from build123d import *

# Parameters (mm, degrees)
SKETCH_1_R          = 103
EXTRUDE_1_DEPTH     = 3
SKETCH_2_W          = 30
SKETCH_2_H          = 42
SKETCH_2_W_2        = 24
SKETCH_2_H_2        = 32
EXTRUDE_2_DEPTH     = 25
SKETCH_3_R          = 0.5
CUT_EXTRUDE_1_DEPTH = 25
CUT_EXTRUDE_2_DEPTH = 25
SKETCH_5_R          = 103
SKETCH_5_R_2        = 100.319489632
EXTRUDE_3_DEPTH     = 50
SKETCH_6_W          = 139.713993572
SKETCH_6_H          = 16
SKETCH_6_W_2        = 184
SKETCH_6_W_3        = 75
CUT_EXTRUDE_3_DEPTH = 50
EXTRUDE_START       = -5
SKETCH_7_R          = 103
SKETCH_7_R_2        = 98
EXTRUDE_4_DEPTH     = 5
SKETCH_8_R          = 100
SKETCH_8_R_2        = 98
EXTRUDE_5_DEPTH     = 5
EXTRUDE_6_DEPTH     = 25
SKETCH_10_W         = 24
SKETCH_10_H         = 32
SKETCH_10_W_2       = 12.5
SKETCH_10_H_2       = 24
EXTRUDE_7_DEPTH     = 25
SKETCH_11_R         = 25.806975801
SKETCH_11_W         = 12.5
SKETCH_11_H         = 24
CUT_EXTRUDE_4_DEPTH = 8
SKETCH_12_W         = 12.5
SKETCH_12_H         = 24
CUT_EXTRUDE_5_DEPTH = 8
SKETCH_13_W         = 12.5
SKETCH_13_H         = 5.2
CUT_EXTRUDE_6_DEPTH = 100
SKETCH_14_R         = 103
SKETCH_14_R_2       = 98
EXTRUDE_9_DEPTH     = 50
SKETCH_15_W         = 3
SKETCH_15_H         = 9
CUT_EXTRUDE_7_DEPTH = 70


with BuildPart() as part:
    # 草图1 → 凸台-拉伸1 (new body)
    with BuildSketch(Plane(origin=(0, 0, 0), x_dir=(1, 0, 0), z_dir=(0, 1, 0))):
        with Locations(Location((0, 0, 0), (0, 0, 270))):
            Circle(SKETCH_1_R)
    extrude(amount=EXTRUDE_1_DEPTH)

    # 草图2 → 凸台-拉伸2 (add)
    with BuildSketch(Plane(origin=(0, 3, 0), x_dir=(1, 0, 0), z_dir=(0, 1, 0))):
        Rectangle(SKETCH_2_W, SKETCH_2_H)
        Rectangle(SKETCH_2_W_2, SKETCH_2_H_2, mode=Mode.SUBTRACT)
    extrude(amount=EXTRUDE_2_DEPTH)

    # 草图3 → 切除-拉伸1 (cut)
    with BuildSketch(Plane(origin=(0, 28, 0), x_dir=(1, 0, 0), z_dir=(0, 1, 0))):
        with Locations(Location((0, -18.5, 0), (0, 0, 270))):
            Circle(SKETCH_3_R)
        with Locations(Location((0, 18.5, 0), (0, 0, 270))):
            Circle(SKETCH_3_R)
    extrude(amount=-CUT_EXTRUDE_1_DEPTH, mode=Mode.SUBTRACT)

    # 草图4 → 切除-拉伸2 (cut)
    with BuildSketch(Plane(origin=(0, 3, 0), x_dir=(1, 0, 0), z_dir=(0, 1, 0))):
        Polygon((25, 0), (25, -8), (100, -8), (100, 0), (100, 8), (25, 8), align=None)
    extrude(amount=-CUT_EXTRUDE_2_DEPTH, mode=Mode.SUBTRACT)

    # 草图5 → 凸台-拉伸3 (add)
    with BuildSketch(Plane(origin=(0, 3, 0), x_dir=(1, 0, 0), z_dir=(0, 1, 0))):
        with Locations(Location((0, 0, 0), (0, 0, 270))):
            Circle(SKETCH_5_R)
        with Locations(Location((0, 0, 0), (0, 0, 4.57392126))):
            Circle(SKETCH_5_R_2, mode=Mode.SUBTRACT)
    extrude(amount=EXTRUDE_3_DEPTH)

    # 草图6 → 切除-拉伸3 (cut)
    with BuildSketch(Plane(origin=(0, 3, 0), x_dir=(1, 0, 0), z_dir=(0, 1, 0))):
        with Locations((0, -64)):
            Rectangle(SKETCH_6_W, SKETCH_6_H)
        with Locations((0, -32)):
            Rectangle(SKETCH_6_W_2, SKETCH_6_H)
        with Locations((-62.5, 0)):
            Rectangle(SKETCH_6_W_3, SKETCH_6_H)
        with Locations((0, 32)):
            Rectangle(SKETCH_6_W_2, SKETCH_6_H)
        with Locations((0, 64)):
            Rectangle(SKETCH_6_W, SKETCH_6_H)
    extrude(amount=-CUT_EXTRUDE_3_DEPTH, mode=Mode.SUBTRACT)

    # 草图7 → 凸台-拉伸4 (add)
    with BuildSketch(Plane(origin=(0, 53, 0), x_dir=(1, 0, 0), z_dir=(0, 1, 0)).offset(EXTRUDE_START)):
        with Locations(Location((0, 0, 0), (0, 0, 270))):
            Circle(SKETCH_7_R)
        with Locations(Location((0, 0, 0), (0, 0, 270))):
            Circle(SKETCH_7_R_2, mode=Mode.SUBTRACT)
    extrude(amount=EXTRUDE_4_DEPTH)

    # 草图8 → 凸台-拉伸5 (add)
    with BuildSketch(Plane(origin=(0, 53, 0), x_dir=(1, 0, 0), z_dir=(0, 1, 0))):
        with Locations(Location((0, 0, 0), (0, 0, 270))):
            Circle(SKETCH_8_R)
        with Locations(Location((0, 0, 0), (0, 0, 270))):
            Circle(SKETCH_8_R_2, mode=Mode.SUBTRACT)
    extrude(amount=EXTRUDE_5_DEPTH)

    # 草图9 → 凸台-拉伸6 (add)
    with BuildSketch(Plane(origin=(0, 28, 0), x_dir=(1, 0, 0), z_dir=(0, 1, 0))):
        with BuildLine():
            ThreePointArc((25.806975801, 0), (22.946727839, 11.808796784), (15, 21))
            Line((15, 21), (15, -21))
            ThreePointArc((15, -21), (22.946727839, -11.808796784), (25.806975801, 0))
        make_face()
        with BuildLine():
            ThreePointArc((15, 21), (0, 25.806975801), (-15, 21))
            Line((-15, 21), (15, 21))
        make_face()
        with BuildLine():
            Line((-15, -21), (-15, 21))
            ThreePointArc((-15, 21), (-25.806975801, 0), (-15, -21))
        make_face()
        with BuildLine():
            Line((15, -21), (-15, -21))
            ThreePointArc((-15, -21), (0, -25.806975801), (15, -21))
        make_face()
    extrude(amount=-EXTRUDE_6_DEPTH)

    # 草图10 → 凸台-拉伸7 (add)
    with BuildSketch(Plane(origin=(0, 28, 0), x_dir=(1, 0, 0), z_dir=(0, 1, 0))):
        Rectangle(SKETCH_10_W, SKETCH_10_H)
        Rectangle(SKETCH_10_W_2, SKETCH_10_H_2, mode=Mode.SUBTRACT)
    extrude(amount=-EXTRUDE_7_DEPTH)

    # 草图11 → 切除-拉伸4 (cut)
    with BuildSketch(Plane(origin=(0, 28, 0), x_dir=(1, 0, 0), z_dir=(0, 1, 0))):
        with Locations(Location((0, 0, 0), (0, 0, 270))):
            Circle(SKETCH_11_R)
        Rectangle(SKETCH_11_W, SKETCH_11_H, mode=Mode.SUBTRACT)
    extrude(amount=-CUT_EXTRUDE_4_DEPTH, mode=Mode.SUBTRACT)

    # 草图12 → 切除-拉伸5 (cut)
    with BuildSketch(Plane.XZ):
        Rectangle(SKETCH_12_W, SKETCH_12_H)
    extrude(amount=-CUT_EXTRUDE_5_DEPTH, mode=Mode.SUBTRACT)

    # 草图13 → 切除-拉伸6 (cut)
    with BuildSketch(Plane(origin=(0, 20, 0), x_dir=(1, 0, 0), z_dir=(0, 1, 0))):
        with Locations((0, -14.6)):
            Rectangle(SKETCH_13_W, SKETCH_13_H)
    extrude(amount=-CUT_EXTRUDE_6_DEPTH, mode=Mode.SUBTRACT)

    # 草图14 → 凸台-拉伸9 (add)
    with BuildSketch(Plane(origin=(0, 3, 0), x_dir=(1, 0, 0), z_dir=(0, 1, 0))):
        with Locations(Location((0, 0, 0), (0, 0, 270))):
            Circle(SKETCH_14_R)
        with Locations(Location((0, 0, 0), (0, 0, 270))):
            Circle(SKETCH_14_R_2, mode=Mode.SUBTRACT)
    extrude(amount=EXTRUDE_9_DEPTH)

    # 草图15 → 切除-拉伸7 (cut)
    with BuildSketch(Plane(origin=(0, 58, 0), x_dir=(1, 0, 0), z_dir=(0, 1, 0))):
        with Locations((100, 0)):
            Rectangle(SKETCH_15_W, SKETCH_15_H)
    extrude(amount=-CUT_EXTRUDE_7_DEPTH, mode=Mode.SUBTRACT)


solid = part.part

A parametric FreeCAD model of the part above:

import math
import FreeCAD as App
import Part
import Sketcher
from FreeCAD import Vector
Q = App.Units.Quantity


def add_polygon(sketch, points):
    """Adds a closed chain of lines whose ends are joined by coincident constraints."""
    first, n = sketch.GeometryCount, len(points)
    for a, b in zip(points, points[1:] + points[:1]):
        sketch.addGeometry(Part.LineSegment(App.Vector(*a, 0), App.Vector(*b, 0)), False)
    for i in range(n):
        sketch.addConstraint(Sketcher.Constraint("Coincident", first + i, 2, first + (i + 1) % n, 1))

doc = App.newDocument("Part")
body = doc.addObject("PartDesign::Body", "Body")

sketch1 = doc.addObject("Sketcher::SketchObject", "Sketch")
body.addObject(sketch1)
sketch1.AttachmentSupport = (doc.XZ_Plane, [""])
sketch1.MapMode = "FlatFace"
sketch1.addGeometry(Part.Circle(Vector(0, 0, 0), Vector(0, 0, 1), 103), False)
sketch1.addConstraint([
    Sketcher.Constraint("Coincident", 0, 3, -1, 1),
    Sketcher.Constraint("Diameter", 0, Q("206 mm")),
])
pad1 = doc.addObject("PartDesign::Pad", "Pad")
body.addObject(pad1)
pad1.Profile = sketch1
pad1.Length = 3
pad1.Reversed = True

sketch2 = doc.addObject("Sketcher::SketchObject", "Sketch001")
body.addObject(sketch2)
sketch2.AttachmentSupport = (doc.XZ_Plane, [""])
sketch2.MapMode = "FlatFace"
sketch2.AttachmentOffset = App.Placement(Vector(0, 0, -3), App.Rotation())
add_polygon(sketch2, [(-15, -21), (-15, 21), (15, 21), (15, -21)])
add_polygon(sketch2, [(12, 16), (-12, 16), (-12, -16), (12, -16)])
sketch2.addConstraint([
    Sketcher.Constraint("Vertical", 0),
    Sketcher.Constraint("Horizontal", 1),
    Sketcher.Constraint("Vertical", 2),
    Sketcher.Constraint("Horizontal", 3),
    Sketcher.Constraint("Horizontal", 4),
    Sketcher.Constraint("Vertical", 5),
    Sketcher.Constraint("Horizontal", 6),
    Sketcher.Constraint("Vertical", 7),
    Sketcher.Constraint("Symmetric", 0, 2, 2, 2, -1, 1),
    Sketcher.Constraint("Symmetric", 4, 2, 6, 2, -1, 1),
    Sketcher.Constraint("DistanceX", 1, 1, 1, 2, Q("30 mm")),
    Sketcher.Constraint("DistanceX", 4, 2, 4, 1, Q("24 mm")),
    Sketcher.Constraint("DistanceY", 0, 1, 0, 2, Q("42 mm")),
    Sketcher.Constraint("DistanceY", 5, 2, 5, 1, Q("32 mm")),
])
pad2 = doc.addObject("PartDesign::Pad", "Pad001")
body.addObject(pad2)
pad2.Profile = sketch2
pad2.Length = 25
pad2.Reversed = True

sketch3 = doc.addObject("Sketcher::SketchObject", "Sketch002")
body.addObject(sketch3)
sketch3.AttachmentSupport = (doc.XZ_Plane, [""])
sketch3.MapMode = "FlatFace"
sketch3.AttachmentOffset = App.Placement(Vector(0, 0, -28), App.Rotation())
sketch3.addGeometry([
    Part.Circle(Vector(0, 18.5, 0), Vector(0, 0, 1), 0.5),
    Part.Circle(Vector(0, -18.5, 0), Vector(0, 0, 1), 0.5),
], False)
sketch3.addConstraint([
    Sketcher.Constraint("Equal", 0, 1),
    Sketcher.Constraint("Symmetric", 0, 3, 1, 3, -1, 1),
    Sketcher.Constraint("PointOnObject", 0, 3, -2),
    Sketcher.Constraint("Diameter", 0, Q("1 mm")),
    Sketcher.Constraint("DistanceY", 1, 3, 0, 3, Q("37 mm")),
])
pocket1 = doc.addObject("PartDesign::Pocket", "Pocket")
body.addObject(pocket1)
pocket1.Profile = sketch3
pocket1.Length = 25
pocket1.Reversed = True

sketch4 = doc.addObject("Sketcher::SketchObject", "Sketch003")
body.addObject(sketch4)
sketch4.AttachmentSupport = (doc.XZ_Plane, [""])
sketch4.MapMode = "FlatFace"
sketch4.AttachmentOffset = App.Placement(Vector(0, 0, -3), App.Rotation())
add_polygon(sketch4, [(25, 8), (100, 8), (100, -8), (25, -8)])
sketch4.addConstraint([
    Sketcher.Constraint("Horizontal", 0),
    Sketcher.Constraint("Vertical", 1),
    Sketcher.Constraint("Horizontal", 2),
    Sketcher.Constraint("Vertical", 3),
    Sketcher.Constraint("DistanceX", 0, 1, 0, 2, Q("75 mm")),
    Sketcher.Constraint("DistanceY", 1, 2, 1, 1, Q("16 mm")),
    Sketcher.Constraint("DistanceX", -1, 1, 0, 2, Q("100 mm")),
    Sketcher.Constraint("DistanceY", -1, 1, 0, 2, Q("8 mm")),
])
pocket2 = doc.addObject("PartDesign::Pocket", "Pocket001")
body.addObject(pocket2)
pocket2.Profile = sketch4
pocket2.Length = 25
pocket2.Reversed = True

sketch5 = doc.addObject("Sketcher::SketchObject", "Sketch004")
body.addObject(sketch5)
sketch5.AttachmentSupport = (doc.XZ_Plane, [""])
sketch5.MapMode = "FlatFace"
sketch5.AttachmentOffset = App.Placement(Vector(0, 0, -3), App.Rotation())
sketch5.addGeometry([
    Part.Circle(Vector(0, 0, 0), Vector(0, 0, 1), 103),
    Part.Circle(Vector(0, 0, 0), Vector(0, 0, 1), 100.31949),
], False)
sketch5.addConstraint([
    Sketcher.Constraint("Coincident", 0, 3, -1, 1),
    Sketcher.Constraint("Coincident", 1, 3, -1, 1),
    Sketcher.Constraint("Diameter", 0, Q("206 mm")),
    Sketcher.Constraint("Diameter", 1, Q("200.638979 mm")),
])
pad3 = doc.addObject("PartDesign::Pad", "Pad002")
body.addObject(pad3)
pad3.Profile = sketch5
pad3.Length = 50
pad3.Reversed = True

sketch6 = doc.addObject("Sketcher::SketchObject", "Sketch005")
body.addObject(sketch6)
sketch6.AttachmentSupport = (doc.XZ_Plane, [""])
sketch6.MapMode = "FlatFace"
sketch6.AttachmentOffset = App.Placement(Vector(0, 0, -3), App.Rotation())
add_polygon(sketch6, [(-69.856997, 56), (-69.856997, 72), (69.856997, 72), (69.856997, 56)])
add_polygon(sketch6, [(-92, 24), (-92, 40), (92, 40), (92, 24)])
add_polygon(sketch6, [(-100, -8), (-100, 8), (-25, 8), (-25, -8)])
add_polygon(sketch6, [(-92, -40), (-92, -24), (92, -24), (92, -40)])
add_polygon(sketch6, [(-69.856997, -72), (-69.856997, -56), (69.856997, -56), (69.856997, -72)])
sketch6.addConstraint([
    Sketcher.Constraint("Vertical", 0),
    Sketcher.Constraint("Horizontal", 1),
    Sketcher.Constraint("Vertical", 2),
    Sketcher.Constraint("Horizontal", 3),
    Sketcher.Constraint("Vertical", 4),
    Sketcher.Constraint("Horizontal", 5),
    Sketcher.Constraint("Vertical", 6),
    Sketcher.Constraint("Horizontal", 7),
    Sketcher.Constraint("Vertical", 8),
    Sketcher.Constraint("Horizontal", 9),
    Sketcher.Constraint("Vertical", 10),
    Sketcher.Constraint("Horizontal", 11),
    Sketcher.Constraint("Vertical", 12),
    Sketcher.Constraint("Horizontal", 13),
    Sketcher.Constraint("Vertical", 14),
    Sketcher.Constraint("Horizontal", 15),
    Sketcher.Constraint("Vertical", 16),
    Sketcher.Constraint("Horizontal", 17),
    Sketcher.Constraint("Vertical", 18),
    Sketcher.Constraint("Horizontal", 19),
    Sketcher.Constraint("Symmetric", 6, 2, 12, 2, -1, 1),
    Sketcher.Constraint("Symmetric", 4, 2, 14, 2, -1, 1),
    Sketcher.Constraint("Symmetric", 2, 2, 16, 2, -1, 1),
    Sketcher.Constraint("Symmetric", 0, 2, 18, 2, -1, 1),
    Sketcher.Constraint("Vertical", 7, 2, 12, 2),
    Sketcher.Constraint("Vertical", 3, 2, 16, 2),
    Sketcher.Constraint("Equal", 2, 4),
    Sketcher.Constraint("Equal", 6, 8),
    Sketcher.Constraint("DistanceX", 5, 1, 5, 2, Q("184 mm")),
    Sketcher.Constraint("DistanceX", 9, 1, 9, 2, Q("75 mm")),
    Sketcher.Constraint("DistanceY", 0, 1, 0, 2, Q("16 mm")),
    Sketcher.Constraint("DistanceY", -1, 1, 0, 2, Q("72 mm")),
    Sketcher.Constraint("DistanceY", -1, 1, 4, 2, Q("40 mm")),
    Sketcher.Constraint("DistanceX", 8, 2, -1, 1, Q("100 mm")),
    Sketcher.Constraint("DistanceY", -1, 1, 8, 2, Q("8 mm")),
    Sketcher.Constraint("DistanceX", 1, 1, 1, 2, Q("139.713994 mm")),
])
pocket3 = doc.addObject("PartDesign::Pocket", "Pocket002")
body.addObject(pocket3)
pocket3.Profile = sketch6
pocket3.Length = 50
pocket3.Reversed = True

sketch7 = doc.addObject("Sketcher::SketchObject", "Sketch006")
body.addObject(sketch7)
sketch7.AttachmentSupport = (doc.XZ_Plane, [""])
sketch7.MapMode = "FlatFace"
sketch7.AttachmentOffset = App.Placement(Vector(0, 0, -48), App.Rotation())
sketch7.addGeometry([
    Part.Circle(Vector(0, 0, 0), Vector(0, 0, 1), 103),
    Part.Circle(Vector(0, 0, 0), Vector(0, 0, 1), 98),
], False)
sketch7.addConstraint([
    Sketcher.Constraint("Coincident", 0, 3, -1, 1),
    Sketcher.Constraint("Coincident", 1, 3, -1, 1),
    Sketcher.Constraint("Diameter", 0, Q("206 mm")),
    Sketcher.Constraint("Diameter", 1, Q("196 mm")),
])
pad4 = doc.addObject("PartDesign::Pad", "Pad003")
body.addObject(pad4)
pad4.Profile = sketch7
pad4.Length = 5
pad4.Reversed = True

sketch8 = doc.addObject("Sketcher::SketchObject", "Sketch007")
body.addObject(sketch8)
sketch8.AttachmentSupport = (doc.XZ_Plane, [""])
sketch8.MapMode = "FlatFace"
sketch8.AttachmentOffset = App.Placement(Vector(0, 0, -53), App.Rotation())
sketch8.addGeometry([
    Part.Circle(Vector(0, 0, 0), Vector(0, 0, 1), 100),
    Part.Circle(Vector(0, 0, 0), Vector(0, 0, 1), 98),
], False)
sketch8.addConstraint([
    Sketcher.Constraint("Coincident", 0, 3, -1, 1),
    Sketcher.Constraint("Coincident", 1, 3, -1, 1),
    Sketcher.Constraint("Diameter", 0, Q("200 mm")),
    Sketcher.Constraint("Diameter", 1, Q("196 mm")),
])
pad5 = doc.addObject("PartDesign::Pad", "Pad004")
body.addObject(pad5)
pad5.Profile = sketch8
pad5.Length = 5
pad5.Reversed = True

sketch9 = doc.addObject("Sketcher::SketchObject", "Sketch008")
body.addObject(sketch9)
sketch9.AttachmentSupport = (doc.XZ_Plane, [""])
sketch9.MapMode = "FlatFace"
sketch9.AttachmentOffset = App.Placement(Vector(0, 0, -28), App.Rotation())
sketch9.addGeometry([
    Part.ArcOfCircle(Part.Circle(Vector(0, 0, 0), Vector(0, 0, 1), 25.806976), math.radians(-54.462322), math.radians(0)),
    Part.LineSegment(Vector(15, -21, 0), Vector(15, 21, 0)),
    Part.ArcOfCircle(Part.Circle(Vector(0, 0, 0), Vector(0, 0, 1), 25.806976), math.radians(0), math.radians(54.462322)),
    Part.ArcOfCircle(Part.Circle(Vector(0, 0, 0), Vector(0, 0, 1), 25.806976), math.radians(-125.537678), math.radians(-54.462322)),
    Part.LineSegment(Vector(-15, -21, 0), Vector(15, -21, 0)),
    Part.LineSegment(Vector(-15, 21, 0), Vector(-15, -21, 0)),
    Part.ArcOfCircle(Part.Circle(Vector(0, 0, 0), Vector(0, 0, 1), 25.806976), math.radians(125.537678), math.radians(234.462322)),
    Part.LineSegment(Vector(15, 21, 0), Vector(-15, 21, 0)),
    Part.ArcOfCircle(Part.Circle(Vector(0, 0, 0), Vector(0, 0, 1), 25.806976), math.radians(54.462322), math.radians(125.537678)),
], False)
sketch9.addConstraint([
    Sketcher.Constraint("Coincident", 0, 1, 1, 1),
    Sketcher.Constraint("Coincident", 1, 2, 2, 2),
    Sketcher.Constraint("Tangent", 2, 1, 0, 2),
    Sketcher.Constraint("Coincident", 3, 1, 4, 1),
    Sketcher.Constraint("Coincident", 4, 2, 3, 2),
    Sketcher.Constraint("Coincident", 5, 1, 6, 1),
    Sketcher.Constraint("Coincident", 6, 2, 5, 2),
    Sketcher.Constraint("Coincident", 7, 1, 8, 1),
    Sketcher.Constraint("Coincident", 8, 2, 7, 2),
    Sketcher.Constraint("Vertical", 1),
    Sketcher.Constraint("Horizontal", 4),
    Sketcher.Constraint("Vertical", 5),
    Sketcher.Constraint("Horizontal", 7),
    Sketcher.Constraint("Coincident", 0, 3, -1, 1),
    Sketcher.Constraint("Coincident", 3, 3, -1, 1),
    Sketcher.Constraint("Coincident", 6, 3, -1, 1),
    Sketcher.Constraint("Coincident", 8, 3, -1, 1),
    Sketcher.Constraint("Coincident", 4, 2, 0, 1),
    Sketcher.Constraint("Coincident", 6, 2, 3, 1),
    Sketcher.Constraint("Coincident", 7, 1, 1, 2),
    Sketcher.Constraint("Equal", 0, 2),
    Sketcher.Constraint("PointOnObject", 2, 1, -1),
    Sketcher.Constraint("DistanceX", 4, 1, 4, 2, Q("30 mm")),
    Sketcher.Constraint("DistanceY", 1, 1, 1, 2, Q("42 mm")),
])
pad6 = doc.addObject("PartDesign::Pad", "Pad005")
body.addObject(pad6)
pad6.Profile = sketch9
pad6.Length = 25

sketch10 = doc.addObject("Sketcher::SketchObject", "Sketch009")
body.addObject(sketch10)
sketch10.AttachmentSupport = (doc.XZ_Plane, [""])
sketch10.MapMode = "FlatFace"
sketch10.AttachmentOffset = App.Placement(Vector(0, 0, -28), App.Rotation())
add_polygon(sketch10, [(-12, -16), (-12, 16), (12, 16), (12, -16)])
add_polygon(sketch10, [(6.25, 12), (-6.25, 12), (-6.25, -12), (6.25, -12)])
sketch10.addConstraint([
    Sketcher.Constraint("Vertical", 0),
    Sketcher.Constraint("Horizontal", 1),
    Sketcher.Constraint("Vertical", 2),
    Sketcher.Constraint("Horizontal", 3),
    Sketcher.Constraint("Horizontal", 4),
    Sketcher.Constraint("Vertical", 5),
    Sketcher.Constraint("Horizontal", 6),
    Sketcher.Constraint("Vertical", 7),
    Sketcher.Constraint("Symmetric", 0, 2, 2, 2, -1, 1),
    Sketcher.Constraint("Symmetric", 4, 2, 6, 2, -1, 1),
    Sketcher.Constraint("Equal", 3, 5),
    Sketcher.Constraint("DistanceX", 1, 1, 1, 2, Q("24 mm")),
    Sketcher.Constraint("DistanceY", 0, 1, 0, 2, Q("32 mm")),
    Sketcher.Constraint("DistanceX", 4, 2, 4, 1, Q("12.5 mm")),
])
pad7 = doc.addObject("PartDesign::Pad", "Pad006")
body.addObject(pad7)
pad7.Profile = sketch10
pad7.Length = 25

sketch11 = doc.addObject("Sketcher::SketchObject", "Sketch010")
body.addObject(sketch11)
sketch11.AttachmentSupport = (doc.XZ_Plane, [""])
sketch11.MapMode = "FlatFace"
sketch11.AttachmentOffset = App.Placement(Vector(0, 0, -28), App.Rotation())
sketch11.addGeometry(Part.Circle(Vector(0, 0, 0), Vector(0, 0, 1), 25.806976), False)
add_polygon(sketch11, [(6.25, 12), (-6.25, 12), (-6.25, -12), (6.25, -12)])
sketch11.addConstraint([
    Sketcher.Constraint("Horizontal", 1),
    Sketcher.Constraint("Vertical", 2),
    Sketcher.Constraint("Horizontal", 3),
    Sketcher.Constraint("Vertical", 4),
    Sketcher.Constraint("Coincident", 0, 3, -1, 1),
    Sketcher.Constraint("Symmetric", 1, 2, 3, 2, -1, 1),
    Sketcher.Constraint("DistanceY", 2, 2, 2, 1, Q("24 mm")),
    Sketcher.Constraint("DistanceX", 1, 2, 1, 1, Q("12.5 mm")),
    Sketcher.Constraint("Diameter", 0, Q("51.613952 mm")),
])
pocket4 = doc.addObject("PartDesign::Pocket", "Pocket003")
body.addObject(pocket4)
pocket4.Profile = sketch11
pocket4.Length = 8
pocket4.Reversed = True

sketch12 = doc.addObject("Sketcher::SketchObject", "Sketch011")
body.addObject(sketch12)
sketch12.AttachmentSupport = (doc.XZ_Plane, [""])
sketch12.MapMode = "FlatFace"
add_polygon(sketch12, [(-6.25, 12), (-6.25, -12), (6.25, -12), (6.25, 12)])
sketch12.addConstraint([
    Sketcher.Constraint("Vertical", 0),
    Sketcher.Constraint("Horizontal", 1),
    Sketcher.Constraint("Vertical", 2),
    Sketcher.Constraint("Horizontal", 3),
    Sketcher.Constraint("Symmetric", 0, 2, 2, 2, -1, 1),
    Sketcher.Constraint("DistanceY", 0, 2, 0, 1, Q("24 mm")),
    Sketcher.Constraint("DistanceX", 1, 1, 1, 2, Q("12.5 mm")),
])
pocket5 = doc.addObject("PartDesign::Pocket", "Pocket004")
body.addObject(pocket5)
pocket5.Profile = sketch12
pocket5.Length = 8

sketch13 = doc.addObject("Sketcher::SketchObject", "Sketch012")
body.addObject(sketch13)
sketch13.AttachmentSupport = (doc.XZ_Plane, [""])
sketch13.MapMode = "FlatFace"
sketch13.AttachmentOffset = App.Placement(Vector(0, 0, -20), App.Rotation())
add_polygon(sketch13, [(-6.25, 12), (-6.25, 17.2), (6.25, 17.2), (6.25, 12)])
sketch13.addConstraint([
    Sketcher.Constraint("Vertical", 0),
    Sketcher.Constraint("Horizontal", 1),
    Sketcher.Constraint("Vertical", 2),
    Sketcher.Constraint("Horizontal", 3),
    Sketcher.Constraint("DistanceX", 1, 1, 1, 2, Q("12.5 mm")),
    Sketcher.Constraint("DistanceY", 0, 1, 0, 2, Q("5.2 mm")),
    Sketcher.Constraint("DistanceY", -1, 1, 2, 2, Q("12 mm")),
    Sketcher.Constraint("DistanceX", 0, 2, -1, 1, Q("6.25 mm")),
])
pocket6 = doc.addObject("PartDesign::Pocket", "Pocket005")
body.addObject(pocket6)
pocket6.Profile = sketch13
pocket6.Length = 100
pocket6.Reversed = True

sketch14 = doc.addObject("Sketcher::SketchObject", "Sketch013")
body.addObject(sketch14)
sketch14.AttachmentSupport = (doc.XZ_Plane, [""])
sketch14.MapMode = "FlatFace"
sketch14.AttachmentOffset = App.Placement(Vector(0, 0, -3), App.Rotation())
sketch14.addGeometry([
    Part.Circle(Vector(0, 0, 0), Vector(0, 0, 1), 103),
    Part.Circle(Vector(0, 0, 0), Vector(0, 0, 1), 98),
], False)
sketch14.addConstraint([
    Sketcher.Constraint("Coincident", 0, 3, -1, 1),
    Sketcher.Constraint("Coincident", 1, 3, -1, 1),
    Sketcher.Constraint("Diameter", 0, Q("206 mm")),
    Sketcher.Constraint("Diameter", 1, Q("196 mm")),
])
pad8 = doc.addObject("PartDesign::Pad", "Pad007")
body.addObject(pad8)
pad8.Profile = sketch14
pad8.Length = 50
pad8.Reversed = True

sketch15 = doc.addObject("Sketcher::SketchObject", "Sketch014")
body.addObject(sketch15)
sketch15.AttachmentSupport = (doc.XZ_Plane, [""])
sketch15.MapMode = "FlatFace"
sketch15.AttachmentOffset = App.Placement(Vector(0, 0, -58), App.Rotation())
add_polygon(sketch15, [(98.5, -4.5), (98.5, 4.5), (101.5, 4.5), (101.5, -4.5)])
sketch15.addConstraint([
    Sketcher.Constraint("Vertical", 0),
    Sketcher.Constraint("Horizontal", 1),
    Sketcher.Constraint("Vertical", 2),
    Sketcher.Constraint("Horizontal", 3),
    Sketcher.Constraint("DistanceX", 1, 1, 1, 2, Q("3 mm")),
    Sketcher.Constraint("DistanceY", 0, 1, 0, 2, Q("9 mm")),
    Sketcher.Constraint("DistanceX", -1, 1, 0, 2, Q("98.5 mm")),
    Sketcher.Constraint("DistanceY", -1, 1, 0, 2, Q("4.5 mm")),
])
pocket7 = doc.addObject("PartDesign::Pocket", "Pocket006")
body.addObject(pocket7)
pocket7.Profile = sketch15
pocket7.Length = 70
pocket7.Reversed = True

doc.recompute()
